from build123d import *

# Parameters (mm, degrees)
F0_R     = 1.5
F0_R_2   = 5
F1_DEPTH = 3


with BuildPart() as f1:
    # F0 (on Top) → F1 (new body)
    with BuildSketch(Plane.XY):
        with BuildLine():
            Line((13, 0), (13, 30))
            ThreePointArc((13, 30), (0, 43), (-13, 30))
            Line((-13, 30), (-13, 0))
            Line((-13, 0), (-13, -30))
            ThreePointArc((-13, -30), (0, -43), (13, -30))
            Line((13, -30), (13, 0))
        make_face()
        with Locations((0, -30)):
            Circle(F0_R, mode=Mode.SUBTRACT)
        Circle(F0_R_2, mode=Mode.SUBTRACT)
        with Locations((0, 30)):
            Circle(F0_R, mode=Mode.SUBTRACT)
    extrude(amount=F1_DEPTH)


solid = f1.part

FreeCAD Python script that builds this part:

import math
import FreeCAD as App
import Part
import Sketcher

V = App.Vector
Q = App.Units.Quantity

doc = App.newDocument("Part")
body = doc.addObject("PartDesign::Body", "Body")

# Sketch on XY plane
sketch1 = body.newObject("Sketcher::SketchObject", "Sketch")
sketch1.AttachmentSupport = (doc.getObject("XY_Plane"), [""])
sketch1.MapMode = "FlatFace"
sketch1.addGeometry(Part.ArcOfCircle(Part.Circle(V(0, 30, 0), V(0, 0, 1), 13), math.radians(0), math.radians(180)), False)
sketch1.addGeometry(Part.LineSegment(V(-13, 30, 0), V(-13, -30, 0)), False)
sketch1.addGeometry(Part.ArcOfCircle(Part.Circle(V(0, -30, 0), V(0, 0, 1), 13), math.radians(180), math.radians(360)), False)
sketch1.addGeometry(Part.LineSegment(V(13, -30, 0), V(13, 30, 0)), False)
sketch1.addGeometry(Part.Circle(V(0, -30, 0), V(0, 0, 1), 1.5), False)
sketch1.addGeometry(Part.Circle(V(0, 0, 0), V(0, 0, 1), 5), False)
sketch1.addGeometry(Part.Circle(V(0, 30, 0), V(0, 0, 1), 1.5), False)
sketch1.addConstraint(Sketcher.Constraint("Tangent", 0, 2, 1, 1))
sketch1.addConstraint(Sketcher.Constraint("Tangent", 1, 2, 2, 1))
sketch1.addConstraint(Sketcher.Constraint("Tangent", 2, 2, 3, 1))
sketch1.addConstraint(Sketcher.Constraint("Tangent", 3, 2, 0, 1))
sketch1.addConstraint(Sketcher.Constraint("Vertical", 1))
sketch1.addConstraint(Sketcher.Constraint("Vertical", 3))
sketch1.addConstraint(Sketcher.Constraint("Coincident", 5, 3, -1, 1))
sketch1.addConstraint(Sketcher.Constraint("Coincident", 4, 3, 2, 3))
sketch1.addConstraint(Sketcher.Constraint("Coincident", 6, 3, 0, 3))
sketch1.addConstraint(Sketcher.Constraint("Equal", 4, 6))
sketch1.addConstraint(Sketcher.Constraint("Symmetric", 0, 3, 2, 3, -1, 1))
sketch1.addConstraint(Sketcher.Constraint("Diameter", 4, Q("3 mm")))
sketch1.addConstraint(Sketcher.Constraint("Diameter", 5, Q("10 mm")))
sketch1.addConstraint(Sketcher.Constraint("Radius", 0, Q("13 mm")))
sketch1.addConstraint(Sketcher.Constraint("DistanceY", 1, 2, 1, 1, Q("60 mm")))
pad1 = body.newObject("PartDesign::Pad", "Pad")
pad1.Profile = sketch1
pad1.Length = 3

doc.recompute()
